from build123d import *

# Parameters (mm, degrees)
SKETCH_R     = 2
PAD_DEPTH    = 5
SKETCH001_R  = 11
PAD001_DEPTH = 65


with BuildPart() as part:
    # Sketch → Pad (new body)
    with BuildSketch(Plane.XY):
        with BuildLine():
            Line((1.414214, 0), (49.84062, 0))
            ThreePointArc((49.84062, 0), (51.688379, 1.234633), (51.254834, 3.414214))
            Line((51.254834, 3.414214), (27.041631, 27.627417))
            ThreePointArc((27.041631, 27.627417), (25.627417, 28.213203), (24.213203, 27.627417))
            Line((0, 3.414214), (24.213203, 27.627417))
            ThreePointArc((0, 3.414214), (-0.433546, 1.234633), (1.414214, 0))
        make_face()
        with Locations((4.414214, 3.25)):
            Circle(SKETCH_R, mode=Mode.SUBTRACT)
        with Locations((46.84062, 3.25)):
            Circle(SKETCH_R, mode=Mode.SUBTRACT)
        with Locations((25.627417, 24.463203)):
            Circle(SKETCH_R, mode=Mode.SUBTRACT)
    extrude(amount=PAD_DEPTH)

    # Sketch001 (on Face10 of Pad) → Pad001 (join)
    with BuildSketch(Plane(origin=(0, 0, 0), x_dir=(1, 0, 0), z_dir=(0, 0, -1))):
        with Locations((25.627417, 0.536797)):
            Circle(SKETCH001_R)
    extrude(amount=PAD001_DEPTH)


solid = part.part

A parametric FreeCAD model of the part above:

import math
import FreeCAD as App
import Part
import Sketcher

V = App.Vector
Q = App.Units.Quantity

doc = App.newDocument("Part")
params = doc.addObject("Spreadsheet::Sheet", "Params")
for row, (alias, value) in enumerate([
    ("sketch1_diameter", "4 mm"),
    ("pad1_length", "5 mm"),
    ("sketch2_diameter", "22 mm"),
    ("pad2_length", "65 mm"),
], start=1):
    params.set(f"A{row}", alias)
    params.set(f"B{row}", "=" + value)
    params.setAlias(f"B{row}", alias)

body = doc.addObject("PartDesign::Body", "Body")

# Sketch on XY plane
sketch1 = doc.addObject("Sketcher::SketchObject", "Sketch")
body.addObject(sketch1)
sketch1.AttachmentSupport = (doc.XY_Plane, [""])
sketch1.MapMode = "FlatFace"
sketch1.addGeometry([
    Part.LineSegment(V(1.4, 0, 0), V(49.8, 0, 0)),  # 0
    Part.ArcOfCircle(Part.Circle(V(49.8, 2, 0), V(0, 0, 1), 2), math.radians(-90), math.radians(45)),  # 1
    Part.LineSegment(V(51.3, 3.4, 0), V(27, 27.6, 0)),  # 2
    Part.ArcOfCircle(Part.Circle(V(25.6, 26.2, 0), V(0, 0, 1), 2), math.radians(45), math.radians(135)),  # 3
    Part.LineSegment(V(24.2, 27.6, 0), V(0, 3.4, 0)),  # 4
    Part.ArcOfCircle(Part.Circle(V(1.4, 2, 0), V(0, 0, 1), 2), math.radians(135), math.radians(270)),  # 5
    Part.Circle(V(4.4, 3.2, 0), V(0, 0, 1), 2),  # 6
    Part.Circle(V(46.8, 3.2, 0), V(0, 0, 1), 2),  # 7
    Part.Circle(V(25.6, 24.5, 0), V(0, 0, 1), 2),  # 8
], False)
sketch1.addConstraint([
    Sketcher.Constraint("Tangent", 0, 2, 1, 1),
    Sketcher.Constraint("Tangent", 1, 2, 2, 1),
    Sketcher.Constraint("Tangent", 2, 2, 3, 1),
    Sketcher.Constraint("Tangent", 3, 2, 4, 1),
    Sketcher.Constraint("Tangent", 4, 2, 5, 1),
    Sketcher.Constraint("Tangent", 5, 2, 0, 1),
    Sketcher.Constraint("Horizontal", 0),
    Sketcher.Constraint("Equal", 1, 3),
    Sketcher.Constraint("Equal", 1, 5),
    Sketcher.Constraint("Equal", 5, 6),
    Sketcher.Constraint("Equal", 6, 7),
    Sketcher.Constraint("Equal", 7, 8),
    Sketcher.Constraint("PointOnObject", 0, 2, -1),
    Sketcher.Constraint("PointOnObject", 4, 2, -2),
    Sketcher.Constraint("Perpendicular", 2, 4),
    Sketcher.Constraint("Horizontal", 6, 3, 7, 3),
    Sketcher.Constraint("Horizontal", 2, 2, 3, 2),
    Sketcher.Constraint("Vertical", 3, 3, 8, 3),
    Sketcher.Constraint("Diameter", 6, Q("4 mm")),
    Sketcher.Constraint("DistanceX", 5, 3, 6, 3, Q("3.000001 mm")),
    Sketcher.Constraint("DistanceX", 7, 3, 1, 3, Q("3 mm")),
    Sketcher.Constraint("DistanceY", -1, 1, 6, 3, Q("3.25 mm")),
    Sketcher.Constraint("DistanceY", -1, 1, 3, 3, Q("26.213201 mm")),
    Sketcher.Constraint("DistanceY", 1, 2, 8, 3, Q("21.048989 mm")),
])
sketch1.setExpression("Constraints[18]", "Params.sketch1_diameter")
pad1 = doc.addObject("PartDesign::Pad", "Pad")
body.addObject(pad1)
pad1.Profile = sketch1
pad1.setExpression("Length", "Params.pad1_length")

# Sketch on XY plane
sketch2 = doc.addObject("Sketcher::SketchObject", "Sketch001")
body.addObject(sketch2)
sketch2.AttachmentSupport = (doc.XY_Plane, [""])
sketch2.MapMode = "FlatFace"
sketch2.addGeometry(Part.Circle(V(26, -1, 0), V(0, 0, 1), 11), False)
sketch2.addConstraint([
    Sketcher.Constraint("Diameter", 0, Q("22 mm")),
    Sketcher.Constraint("DistanceX", -1, 1, 0, 3, Q("25.627417 mm")),
    Sketcher.Constraint("DistanceY", 0, 3, -1, 1, Q("0.536797 mm")),
])
sketch2.setExpression("Constraints[0]", "Params.sketch2_diameter")
pad2 = doc.addObject("PartDesign::Pad", "Pad001")
body.addObject(pad2)
pad2.Profile = sketch2
pad2.setExpression("Length", "Params.pad2_length")
pad2.Reversed = True

doc.recompute()
